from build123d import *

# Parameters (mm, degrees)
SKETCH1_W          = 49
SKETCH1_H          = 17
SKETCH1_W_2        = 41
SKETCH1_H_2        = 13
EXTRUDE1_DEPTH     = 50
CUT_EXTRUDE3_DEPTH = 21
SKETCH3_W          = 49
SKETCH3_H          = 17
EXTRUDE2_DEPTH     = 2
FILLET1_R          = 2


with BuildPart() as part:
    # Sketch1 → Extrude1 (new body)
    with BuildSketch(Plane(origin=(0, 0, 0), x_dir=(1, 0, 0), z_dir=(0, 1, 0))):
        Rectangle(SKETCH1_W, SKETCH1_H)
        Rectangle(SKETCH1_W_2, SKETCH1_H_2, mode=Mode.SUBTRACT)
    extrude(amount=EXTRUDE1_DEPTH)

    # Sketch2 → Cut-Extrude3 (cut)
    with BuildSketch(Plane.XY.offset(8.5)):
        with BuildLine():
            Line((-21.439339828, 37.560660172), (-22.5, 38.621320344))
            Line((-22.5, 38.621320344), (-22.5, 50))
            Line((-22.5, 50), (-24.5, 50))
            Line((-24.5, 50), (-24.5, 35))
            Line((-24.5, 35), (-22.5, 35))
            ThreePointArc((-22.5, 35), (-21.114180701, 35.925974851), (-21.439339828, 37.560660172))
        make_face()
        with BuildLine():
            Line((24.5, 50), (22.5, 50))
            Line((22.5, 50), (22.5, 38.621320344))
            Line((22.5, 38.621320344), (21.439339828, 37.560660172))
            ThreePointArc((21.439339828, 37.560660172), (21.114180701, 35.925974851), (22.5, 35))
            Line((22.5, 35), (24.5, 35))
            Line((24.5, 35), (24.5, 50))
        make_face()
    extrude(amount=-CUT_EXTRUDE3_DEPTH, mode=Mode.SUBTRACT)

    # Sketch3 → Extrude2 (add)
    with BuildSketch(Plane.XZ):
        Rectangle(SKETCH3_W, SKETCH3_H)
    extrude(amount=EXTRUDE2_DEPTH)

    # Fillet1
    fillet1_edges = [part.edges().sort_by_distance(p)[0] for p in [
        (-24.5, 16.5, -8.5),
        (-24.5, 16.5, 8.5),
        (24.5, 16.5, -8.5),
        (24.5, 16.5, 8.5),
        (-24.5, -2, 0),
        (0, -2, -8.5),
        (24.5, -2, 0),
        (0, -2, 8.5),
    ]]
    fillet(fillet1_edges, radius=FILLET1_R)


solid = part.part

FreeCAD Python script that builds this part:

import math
import FreeCAD as App
import Part
import Sketcher
Q = App.Units.Quantity


def edges_at(feature, points):
    """Names of the edges that pass closest to the given points."""
    edges = feature.Shape.Edges
    near = lambda p: min(range(len(edges)), key=lambda i: edges[i].distToShape(Part.Vertex(*p))[0])
    return sorted({f"Edge{near(p) + 1}" for p in points})

doc = App.newDocument("Part")
params = doc.addObject("Spreadsheet::Sheet", "Params")
for row, (alias, value) in enumerate([
    ("sketch1_width", "49 mm"),
    ("sketch1_width2", "41 mm"),
    ("sketch1_height", "17 mm"),
    ("sketch1_height2", "13 mm"),
    ("pad1_length", "50 mm"),
    ("sketch2_radius", "1.5 mm"),
    ("sketch2_width", "2 mm"),
    ("sketch2_height", "15 mm"),
    ("pocket1_length", "21 mm"),
    ("sketch3_width", "49 mm"),
    ("sketch3_height", "17 mm"),
    ("pad2_length", "2 mm"),
    ("fillet_radius", "2 mm"),
], start=1):
    params.set(f"A{row}", alias)
    params.set(f"B{row}", "=" + value)
    params.setAlias(f"B{row}", alias)

body = doc.addObject("PartDesign::Body", "Body")

sketch1 = doc.addObject("Sketcher::SketchObject", "Sketch")
body.addObject(sketch1)
sketch1.AttachmentSupport = (doc.XZ_Plane, [""])
sketch1.MapMode = "FlatFace"
sketch1.addGeometry([
    Part.LineSegment(App.Vector(-24, -8, 0), App.Vector(-24, 8, 0)),
    Part.LineSegment(App.Vector(-24, 8, 0), App.Vector(24, 8, 0)),
    Part.LineSegment(App.Vector(24, 8, 0), App.Vector(24, -8, 0)),
    Part.LineSegment(App.Vector(24, -8, 0), App.Vector(-24, -8, 0)),
    Part.LineSegment(App.Vector(20, 6, 0), App.Vector(-20, 6, 0)),
    Part.LineSegment(App.Vector(-20, 6, 0), App.Vector(-20, -6, 0)),
    Part.LineSegment(App.Vector(-20, -6, 0), App.Vector(20, -6, 0)),
    Part.LineSegment(App.Vector(20, -6, 0), App.Vector(20, 6, 0)),
], False)
sketch1.addConstraint([
    Sketcher.Constraint("Coincident", 0, 2, 1, 1),
    Sketcher.Constraint("Coincident", 1, 2, 2, 1),
    Sketcher.Constraint("Coincident", 2, 2, 3, 1),
    Sketcher.Constraint("Coincident", 3, 2, 0, 1),
    Sketcher.Constraint("Coincident", 4, 2, 5, 1),
    Sketcher.Constraint("Coincident", 5, 2, 6, 1),
    Sketcher.Constraint("Coincident", 6, 2, 7, 1),
    Sketcher.Constraint("Coincident", 7, 2, 4, 1),
    Sketcher.Constraint("Vertical", 0),
    Sketcher.Constraint("Horizontal", 1),
    Sketcher.Constraint("Vertical", 2),
    Sketcher.Constraint("Horizontal", 3),
    Sketcher.Constraint("Horizontal", 4),
    Sketcher.Constraint("Vertical", 5),
    Sketcher.Constraint("Horizontal", 6),
    Sketcher.Constraint("Vertical", 7),
    Sketcher.Constraint("Symmetric", 0, 2, 2, 2, -1, 1),
    Sketcher.Constraint("Symmetric", 4, 2, 6, 2, -1, 1),
    Sketcher.Constraint("DistanceX", 1, 1, 1, 2, Q("49 mm")),
    Sketcher.Constraint("DistanceX", 4, 2, 4, 1, Q("41 mm")),
    Sketcher.Constraint("DistanceY", 0, 1, 0, 2, Q("17 mm")),
    Sketcher.Constraint("DistanceY", 5, 2, 5, 1, Q("13 mm")),
])
sketch1.setExpression("Constraints[18]", "Params.sketch1_width")
sketch1.setExpression("Constraints[19]", "Params.sketch1_width2")
sketch1.setExpression("Constraints[20]", "Params.sketch1_height")
sketch1.setExpression("Constraints[21]", "Params.sketch1_height2")
pad1 = doc.addObject("PartDesign::Pad", "Pad")
body.addObject(pad1)
pad1.Profile = sketch1
pad1.setExpression("Length", "Params.pad1_length")
pad1.Reversed = True

sketch2 = doc.addObject("Sketcher::SketchObject", "Sketch001")
body.addObject(sketch2)
sketch2.AttachmentSupport = (doc.XY_Plane, [""])
sketch2.MapMode = "FlatFace"
sketch2.AttachmentOffset = App.Placement(App.Vector(0, 0, 8.5), App.Rotation())
sketch2.addGeometry([
    Part.LineSegment(App.Vector(-21.4, 37.6, 0), App.Vector(-22.5, 38.6, 0)),
    Part.LineSegment(App.Vector(-22.5, 38.6, 0), App.Vector(-22.5, 50, 0)),
    Part.LineSegment(App.Vector(-22.5, 50, 0), App.Vector(-24.5, 50, 0)),
    Part.LineSegment(App.Vector(-24.5, 50, 0), App.Vector(-24.5, 35, 0)),
    Part.LineSegment(App.Vector(-24.5, 35, 0), App.Vector(-22.5, 35, 0)),
    Part.ArcOfCircle(Part.Circle(App.Vector(-22.5, 36.5, 0), App.Vector(0, 0, 1), 1.5), math.radians(-90), math.radians(45)),
    Part.LineSegment(App.Vector(24.5, 50, 0), App.Vector(22.5, 50, 0)),
    Part.LineSegment(App.Vector(22.5, 50, 0), App.Vector(22.5, 38.6, 0)),
    Part.LineSegment(App.Vector(22.5, 38.6, 0), App.Vector(21.4, 37.6, 0)),
    Part.ArcOfCircle(Part.Circle(App.Vector(22.5, 36.5, 0), App.Vector(0, 0, 1), 1.5), math.radians(135), math.radians(270)),
    Part.LineSegment(App.Vector(22.5, 35, 0), App.Vector(24.5, 35, 0)),
    Part.LineSegment(App.Vector(24.5, 35, 0), App.Vector(24.5, 50, 0)),
], False)
sketch2.addConstraint([
    Sketcher.Constraint("Coincident", 0, 2, 1, 1),
    Sketcher.Constraint("Coincident", 1, 2, 2, 1),
    Sketcher.Constraint("Coincident", 2, 2, 3, 1),
    Sketcher.Constraint("Coincident", 3, 2, 4, 1),
    Sketcher.Constraint("Tangent", 4, 2, 5, 1),
    Sketcher.Constraint("Tangent", 5, 2, 0, 1),
    Sketcher.Constraint("Coincident", 6, 2, 7, 1),
    Sketcher.Constraint("Coincident", 7, 2, 8, 1),
    Sketcher.Constraint("Tangent", 8, 2, 9, 1),
    Sketcher.Constraint("Tangent", 9, 2, 10, 1),
    Sketcher.Constraint("Coincident", 10, 2, 11, 1),
    Sketcher.Constraint("Coincident", 11, 2, 6, 1),
    Sketcher.Constraint("Vertical", 1),
    Sketcher.Constraint("Horizontal", 2),
    Sketcher.Constraint("Vertical", 3),
    Sketcher.Constraint("Horizontal", 4),
    Sketcher.Constraint("Horizontal", 6),
    Sketcher.Constraint("Vertical", 7),
    Sketcher.Constraint("Horizontal", 10),
    Sketcher.Constraint("Vertical", 11),
    Sketcher.Constraint("Equal", 5, 9),
    Sketcher.Constraint("Symmetric", 5, 3, 9, 3, -2),
    Sketcher.Constraint("Symmetric", 1, 2, 6, 2, -2),
    Sketcher.Constraint("Perpendicular", 0, 8),
    Sketcher.Constraint("Horizontal", 0, 2, 7, 2),
    Sketcher.Constraint("Vertical", 5, 3, 0, 2),
    Sketcher.Constraint("Equal", 4, 6),
    Sketcher.Constraint("Radius", 5, Q("1.5 mm")),
    Sketcher.Constraint("DistanceX", 2, 2, 2, 1, Q("2 mm")),
    Sketcher.Constraint("DistanceY", 3, 2, 3, 1, Q("15 mm")),
    Sketcher.Constraint("DistanceY", -1, 1, 1, 2, Q("50 mm")),
    Sketcher.Constraint("DistanceX", 5, 3, 9, 3, Q("45 mm")),
])
sketch2.setExpression("Constraints[27]", "Params.sketch2_radius")
sketch2.setExpression("Constraints[28]", "Params.sketch2_width")
sketch2.setExpression("Constraints[29]", "Params.sketch2_height")
pocket1 = doc.addObject("PartDesign::Pocket", "Pocket")
body.addObject(pocket1)
pocket1.Profile = sketch2
pocket1.setExpression("Length", "Params.pocket1_length")

sketch3 = doc.addObject("Sketcher::SketchObject", "Sketch002")
body.addObject(sketch3)
sketch3.AttachmentSupport = (doc.XZ_Plane, [""])
sketch3.MapMode = "FlatFace"
sketch3.addGeometry([
    Part.LineSegment(App.Vector(-24, 8, 0), App.Vector(-24, -8, 0)),
    Part.LineSegment(App.Vector(-24, -8, 0), App.Vector(24, -8, 0)),
    Part.LineSegment(App.Vector(24, -8, 0), App.Vector(24, 8, 0)),
    Part.LineSegment(App.Vector(24, 8, 0), App.Vector(-24, 8, 0)),
], False)
sketch3.addConstraint([
    Sketcher.Constraint("Coincident", 0, 2, 1, 1),
    Sketcher.Constraint("Coincident", 1, 2, 2, 1),
    Sketcher.Constraint("Coincident", 2, 2, 3, 1),
    Sketcher.Constraint("Coincident", 3, 2, 0, 1),
    Sketcher.Constraint("Vertical", 0),
    Sketcher.Constraint("Horizontal", 1),
    Sketcher.Constraint("Vertical", 2),
    Sketcher.Constraint("Horizontal", 3),
    Sketcher.Constraint("Symmetric", 0, 2, 2, 2, -1, 1),
    Sketcher.Constraint("DistanceX", 1, 1, 1, 2, Q("49 mm")),
    Sketcher.Constraint("DistanceY", 0, 2, 0, 1, Q("17 mm")),
])
sketch3.setExpression("Constraints[9]", "Params.sketch3_width")
sketch3.setExpression("Constraints[10]", "Params.sketch3_height")
pad2 = doc.addObject("PartDesign::Pad", "Pad001")
body.addObject(pad2)
pad2.Profile = sketch3
pad2.setExpression("Length", "Params.pad2_length")
doc.recompute()

fillet = doc.addObject("PartDesign::Fillet", "Fillet")
body.addObject(fillet)
fillet.Base = (pad2, edges_at(pad2, [
    (-24.5, 16.5, -8.5),
    (-24.5, 16.5, 8.5),
    (24.5, 16.5, -8.5),
    (24.5, 16.5, 8.5),
    (-24.5, -2, 0),
    (0, -2, -8.5),
    (24.5, -2, 0),
    (0, -2, 8.5),
]))
fillet.setExpression("Radius", "Params.fillet_radius")

doc.recompute()
